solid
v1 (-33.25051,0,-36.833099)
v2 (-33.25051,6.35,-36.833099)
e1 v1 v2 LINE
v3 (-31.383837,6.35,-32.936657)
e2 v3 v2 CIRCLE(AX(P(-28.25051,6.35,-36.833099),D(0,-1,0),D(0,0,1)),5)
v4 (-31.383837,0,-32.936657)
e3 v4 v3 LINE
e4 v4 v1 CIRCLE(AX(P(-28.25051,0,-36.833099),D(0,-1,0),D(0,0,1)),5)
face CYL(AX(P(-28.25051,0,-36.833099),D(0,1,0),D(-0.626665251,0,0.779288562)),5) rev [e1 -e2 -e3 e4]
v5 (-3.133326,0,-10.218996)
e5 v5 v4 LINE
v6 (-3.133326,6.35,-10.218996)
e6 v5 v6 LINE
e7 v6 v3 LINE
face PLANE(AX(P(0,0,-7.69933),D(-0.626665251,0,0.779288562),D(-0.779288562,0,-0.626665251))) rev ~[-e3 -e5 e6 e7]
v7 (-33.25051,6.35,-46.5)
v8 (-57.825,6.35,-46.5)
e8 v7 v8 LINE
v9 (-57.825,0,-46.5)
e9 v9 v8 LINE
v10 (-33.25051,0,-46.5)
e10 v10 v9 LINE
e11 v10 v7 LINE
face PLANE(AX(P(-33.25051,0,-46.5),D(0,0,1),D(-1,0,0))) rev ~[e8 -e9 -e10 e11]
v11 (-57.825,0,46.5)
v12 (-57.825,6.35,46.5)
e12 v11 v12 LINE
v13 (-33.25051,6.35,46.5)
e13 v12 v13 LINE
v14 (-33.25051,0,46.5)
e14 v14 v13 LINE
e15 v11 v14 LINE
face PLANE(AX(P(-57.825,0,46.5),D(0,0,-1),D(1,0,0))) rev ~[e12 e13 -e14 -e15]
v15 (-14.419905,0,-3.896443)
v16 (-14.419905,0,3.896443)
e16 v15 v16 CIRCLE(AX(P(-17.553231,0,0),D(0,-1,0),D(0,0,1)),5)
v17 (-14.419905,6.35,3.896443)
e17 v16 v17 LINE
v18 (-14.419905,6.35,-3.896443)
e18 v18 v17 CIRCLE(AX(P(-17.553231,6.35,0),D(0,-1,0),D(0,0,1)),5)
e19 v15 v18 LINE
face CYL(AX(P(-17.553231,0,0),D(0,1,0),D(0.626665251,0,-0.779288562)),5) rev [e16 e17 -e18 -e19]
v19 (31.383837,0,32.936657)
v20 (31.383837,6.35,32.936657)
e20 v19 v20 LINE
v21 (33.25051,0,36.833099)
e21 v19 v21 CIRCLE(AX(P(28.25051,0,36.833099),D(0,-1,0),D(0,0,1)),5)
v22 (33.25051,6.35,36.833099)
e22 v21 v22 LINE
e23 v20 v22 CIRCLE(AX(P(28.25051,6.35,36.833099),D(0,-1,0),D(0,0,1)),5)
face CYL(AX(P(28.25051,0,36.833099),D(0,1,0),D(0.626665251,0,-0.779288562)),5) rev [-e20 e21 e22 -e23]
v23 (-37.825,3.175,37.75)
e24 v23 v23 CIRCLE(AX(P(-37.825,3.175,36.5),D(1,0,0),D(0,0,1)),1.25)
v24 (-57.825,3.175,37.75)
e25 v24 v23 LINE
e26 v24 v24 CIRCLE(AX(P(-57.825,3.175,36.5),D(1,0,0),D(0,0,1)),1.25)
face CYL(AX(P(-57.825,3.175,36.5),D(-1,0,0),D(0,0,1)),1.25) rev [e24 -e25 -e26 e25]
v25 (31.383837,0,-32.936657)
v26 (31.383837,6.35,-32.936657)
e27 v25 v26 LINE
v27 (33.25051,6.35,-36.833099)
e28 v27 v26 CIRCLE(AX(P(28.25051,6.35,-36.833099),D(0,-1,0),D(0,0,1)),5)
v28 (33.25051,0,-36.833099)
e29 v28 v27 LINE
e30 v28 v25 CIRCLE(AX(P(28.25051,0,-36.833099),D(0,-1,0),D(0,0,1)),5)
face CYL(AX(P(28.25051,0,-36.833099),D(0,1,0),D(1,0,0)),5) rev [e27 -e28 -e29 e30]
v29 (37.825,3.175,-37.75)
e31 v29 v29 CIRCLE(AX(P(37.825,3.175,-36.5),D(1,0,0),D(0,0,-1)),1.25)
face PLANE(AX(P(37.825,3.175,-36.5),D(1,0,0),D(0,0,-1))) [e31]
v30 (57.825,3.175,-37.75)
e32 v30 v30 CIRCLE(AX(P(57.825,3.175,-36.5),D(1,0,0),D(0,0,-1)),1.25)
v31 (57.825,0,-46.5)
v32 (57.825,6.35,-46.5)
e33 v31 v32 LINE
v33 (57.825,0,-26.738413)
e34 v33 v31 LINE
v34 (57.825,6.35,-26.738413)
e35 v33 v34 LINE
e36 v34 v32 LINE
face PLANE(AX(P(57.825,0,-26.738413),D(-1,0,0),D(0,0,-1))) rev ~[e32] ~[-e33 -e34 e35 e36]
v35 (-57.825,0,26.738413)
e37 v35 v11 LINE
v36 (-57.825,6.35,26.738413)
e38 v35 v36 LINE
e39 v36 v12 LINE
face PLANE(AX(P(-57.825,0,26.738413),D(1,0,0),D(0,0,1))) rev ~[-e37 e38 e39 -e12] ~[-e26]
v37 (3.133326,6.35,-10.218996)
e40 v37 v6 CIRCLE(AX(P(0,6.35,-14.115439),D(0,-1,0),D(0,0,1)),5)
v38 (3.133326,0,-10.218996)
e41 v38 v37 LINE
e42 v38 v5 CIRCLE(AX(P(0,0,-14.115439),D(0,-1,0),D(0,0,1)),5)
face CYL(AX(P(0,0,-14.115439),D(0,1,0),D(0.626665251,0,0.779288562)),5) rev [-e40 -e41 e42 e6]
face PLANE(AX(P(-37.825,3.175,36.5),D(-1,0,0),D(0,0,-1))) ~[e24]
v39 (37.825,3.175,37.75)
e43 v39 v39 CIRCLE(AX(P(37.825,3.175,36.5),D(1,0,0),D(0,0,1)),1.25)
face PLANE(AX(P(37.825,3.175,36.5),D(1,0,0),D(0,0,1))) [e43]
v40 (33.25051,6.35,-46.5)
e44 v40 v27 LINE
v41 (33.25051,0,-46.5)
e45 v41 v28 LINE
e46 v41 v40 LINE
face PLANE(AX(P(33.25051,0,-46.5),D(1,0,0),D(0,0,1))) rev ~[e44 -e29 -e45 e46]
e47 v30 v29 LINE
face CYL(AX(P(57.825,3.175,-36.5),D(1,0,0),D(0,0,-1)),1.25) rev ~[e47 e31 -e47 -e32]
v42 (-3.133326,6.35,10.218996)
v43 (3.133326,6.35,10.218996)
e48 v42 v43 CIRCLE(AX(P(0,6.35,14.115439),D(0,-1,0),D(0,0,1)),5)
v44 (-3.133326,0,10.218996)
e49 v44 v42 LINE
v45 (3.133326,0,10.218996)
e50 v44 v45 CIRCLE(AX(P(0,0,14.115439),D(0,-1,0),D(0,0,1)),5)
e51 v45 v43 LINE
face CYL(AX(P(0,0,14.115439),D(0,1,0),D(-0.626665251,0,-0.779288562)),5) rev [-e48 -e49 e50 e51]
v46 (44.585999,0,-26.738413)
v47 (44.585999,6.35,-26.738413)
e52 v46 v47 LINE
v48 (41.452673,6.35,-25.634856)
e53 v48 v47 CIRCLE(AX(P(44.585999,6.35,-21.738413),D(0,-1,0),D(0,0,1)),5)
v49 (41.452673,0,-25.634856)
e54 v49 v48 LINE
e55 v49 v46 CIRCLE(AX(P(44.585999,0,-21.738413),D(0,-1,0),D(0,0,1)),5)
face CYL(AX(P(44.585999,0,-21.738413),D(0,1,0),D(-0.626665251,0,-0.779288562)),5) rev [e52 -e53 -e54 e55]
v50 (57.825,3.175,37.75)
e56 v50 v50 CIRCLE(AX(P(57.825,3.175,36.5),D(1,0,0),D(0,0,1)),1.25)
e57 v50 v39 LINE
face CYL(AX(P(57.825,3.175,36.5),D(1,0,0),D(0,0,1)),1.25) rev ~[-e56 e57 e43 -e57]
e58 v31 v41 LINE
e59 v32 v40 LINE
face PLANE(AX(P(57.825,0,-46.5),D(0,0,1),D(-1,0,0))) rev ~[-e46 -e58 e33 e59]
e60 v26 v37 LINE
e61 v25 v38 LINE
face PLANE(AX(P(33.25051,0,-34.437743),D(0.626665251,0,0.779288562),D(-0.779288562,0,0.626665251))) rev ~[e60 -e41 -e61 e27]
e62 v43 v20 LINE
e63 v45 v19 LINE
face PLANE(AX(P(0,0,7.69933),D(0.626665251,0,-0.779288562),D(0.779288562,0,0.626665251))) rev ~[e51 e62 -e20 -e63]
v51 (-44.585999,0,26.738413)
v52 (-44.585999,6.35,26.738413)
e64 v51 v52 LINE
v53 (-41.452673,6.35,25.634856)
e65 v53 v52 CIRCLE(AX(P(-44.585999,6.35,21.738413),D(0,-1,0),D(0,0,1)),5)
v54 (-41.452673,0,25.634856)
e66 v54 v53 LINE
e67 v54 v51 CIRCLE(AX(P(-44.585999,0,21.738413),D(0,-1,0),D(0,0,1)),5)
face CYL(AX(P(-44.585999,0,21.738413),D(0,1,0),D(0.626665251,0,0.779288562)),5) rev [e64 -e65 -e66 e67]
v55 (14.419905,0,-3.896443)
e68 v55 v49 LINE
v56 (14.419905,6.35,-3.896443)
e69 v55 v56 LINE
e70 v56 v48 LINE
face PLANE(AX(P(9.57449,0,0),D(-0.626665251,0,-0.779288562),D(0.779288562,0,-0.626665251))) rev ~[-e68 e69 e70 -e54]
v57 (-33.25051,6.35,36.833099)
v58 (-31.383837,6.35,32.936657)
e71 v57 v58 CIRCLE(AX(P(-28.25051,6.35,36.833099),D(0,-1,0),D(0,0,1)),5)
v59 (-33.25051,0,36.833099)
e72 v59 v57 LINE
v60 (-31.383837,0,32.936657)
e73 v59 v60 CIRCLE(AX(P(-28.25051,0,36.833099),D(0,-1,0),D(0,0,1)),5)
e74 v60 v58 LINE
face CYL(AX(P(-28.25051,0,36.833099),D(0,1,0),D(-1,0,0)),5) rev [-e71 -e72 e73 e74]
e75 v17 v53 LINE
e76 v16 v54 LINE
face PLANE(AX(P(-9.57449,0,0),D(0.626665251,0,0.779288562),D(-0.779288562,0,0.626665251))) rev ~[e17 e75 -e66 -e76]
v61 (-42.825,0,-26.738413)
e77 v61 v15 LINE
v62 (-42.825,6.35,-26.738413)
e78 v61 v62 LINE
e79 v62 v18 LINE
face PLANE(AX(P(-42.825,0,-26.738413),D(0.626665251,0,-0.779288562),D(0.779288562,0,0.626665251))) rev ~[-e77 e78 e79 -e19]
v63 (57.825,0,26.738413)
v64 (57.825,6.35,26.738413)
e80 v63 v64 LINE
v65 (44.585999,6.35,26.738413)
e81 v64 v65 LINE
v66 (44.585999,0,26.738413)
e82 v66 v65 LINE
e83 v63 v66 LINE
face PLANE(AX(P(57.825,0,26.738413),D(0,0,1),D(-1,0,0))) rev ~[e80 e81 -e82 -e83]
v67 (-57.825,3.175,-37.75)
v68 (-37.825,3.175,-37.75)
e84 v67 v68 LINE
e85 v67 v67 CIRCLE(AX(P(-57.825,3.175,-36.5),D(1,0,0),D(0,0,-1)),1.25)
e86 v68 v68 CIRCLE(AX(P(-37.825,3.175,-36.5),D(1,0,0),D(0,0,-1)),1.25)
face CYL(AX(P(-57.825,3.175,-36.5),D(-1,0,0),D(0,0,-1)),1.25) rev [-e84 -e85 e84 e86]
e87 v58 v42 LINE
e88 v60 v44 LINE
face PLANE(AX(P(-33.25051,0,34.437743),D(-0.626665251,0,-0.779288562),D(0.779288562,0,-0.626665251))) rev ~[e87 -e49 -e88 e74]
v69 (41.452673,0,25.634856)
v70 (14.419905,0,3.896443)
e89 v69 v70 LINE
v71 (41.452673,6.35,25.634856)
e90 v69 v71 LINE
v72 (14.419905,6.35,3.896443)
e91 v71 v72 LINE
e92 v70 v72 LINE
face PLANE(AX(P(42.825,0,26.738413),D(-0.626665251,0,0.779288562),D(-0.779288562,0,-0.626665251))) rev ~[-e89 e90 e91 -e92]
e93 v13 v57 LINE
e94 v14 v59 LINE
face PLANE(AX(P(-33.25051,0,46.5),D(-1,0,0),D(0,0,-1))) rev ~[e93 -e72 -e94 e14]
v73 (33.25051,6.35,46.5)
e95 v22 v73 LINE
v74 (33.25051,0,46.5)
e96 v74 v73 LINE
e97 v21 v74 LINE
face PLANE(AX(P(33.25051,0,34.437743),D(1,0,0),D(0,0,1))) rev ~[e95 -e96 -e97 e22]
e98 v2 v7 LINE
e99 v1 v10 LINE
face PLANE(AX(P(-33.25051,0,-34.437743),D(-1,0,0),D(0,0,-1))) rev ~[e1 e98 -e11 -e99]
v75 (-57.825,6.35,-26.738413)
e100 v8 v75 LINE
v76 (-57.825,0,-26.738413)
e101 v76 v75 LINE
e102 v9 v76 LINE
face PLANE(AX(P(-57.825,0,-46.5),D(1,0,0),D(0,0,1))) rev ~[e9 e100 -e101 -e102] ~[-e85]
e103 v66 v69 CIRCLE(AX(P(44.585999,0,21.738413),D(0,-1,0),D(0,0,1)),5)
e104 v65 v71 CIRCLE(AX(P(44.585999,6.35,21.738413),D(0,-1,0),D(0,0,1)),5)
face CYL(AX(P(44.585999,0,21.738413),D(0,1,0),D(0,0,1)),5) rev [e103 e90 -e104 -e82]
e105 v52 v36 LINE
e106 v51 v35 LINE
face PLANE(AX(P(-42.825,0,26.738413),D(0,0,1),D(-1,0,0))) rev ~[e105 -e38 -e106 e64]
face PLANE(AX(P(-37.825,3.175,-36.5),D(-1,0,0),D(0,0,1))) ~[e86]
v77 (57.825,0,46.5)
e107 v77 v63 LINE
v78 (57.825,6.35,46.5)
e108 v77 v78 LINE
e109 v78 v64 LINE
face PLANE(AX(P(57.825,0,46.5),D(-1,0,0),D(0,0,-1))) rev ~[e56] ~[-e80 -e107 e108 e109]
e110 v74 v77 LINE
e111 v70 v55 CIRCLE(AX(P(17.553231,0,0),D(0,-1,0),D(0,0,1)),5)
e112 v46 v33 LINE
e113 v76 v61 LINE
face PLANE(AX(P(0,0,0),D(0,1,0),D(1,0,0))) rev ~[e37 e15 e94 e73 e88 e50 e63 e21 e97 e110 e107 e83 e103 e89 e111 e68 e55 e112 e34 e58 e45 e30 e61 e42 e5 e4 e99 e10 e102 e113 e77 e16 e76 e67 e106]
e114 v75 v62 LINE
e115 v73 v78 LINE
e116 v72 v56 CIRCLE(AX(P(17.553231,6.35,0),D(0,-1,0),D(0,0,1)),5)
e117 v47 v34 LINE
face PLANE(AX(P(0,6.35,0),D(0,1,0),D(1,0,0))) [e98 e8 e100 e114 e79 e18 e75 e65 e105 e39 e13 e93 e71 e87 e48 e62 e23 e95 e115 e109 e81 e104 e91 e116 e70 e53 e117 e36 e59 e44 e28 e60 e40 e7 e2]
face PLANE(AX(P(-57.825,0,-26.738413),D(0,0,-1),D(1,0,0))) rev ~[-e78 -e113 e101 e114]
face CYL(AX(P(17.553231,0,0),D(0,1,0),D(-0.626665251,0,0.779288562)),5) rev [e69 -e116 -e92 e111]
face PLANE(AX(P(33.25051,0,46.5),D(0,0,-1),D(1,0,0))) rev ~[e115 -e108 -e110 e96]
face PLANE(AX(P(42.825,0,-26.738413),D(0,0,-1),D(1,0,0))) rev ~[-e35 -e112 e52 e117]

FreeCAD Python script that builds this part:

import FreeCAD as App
import Part
import Sketcher
from FreeCAD import Vector
Q = App.Units.Quantity


def edges_at(feature, points):
    """Names of the edges that pass closest to the given points."""
    edges = feature.Shape.Edges
    near = lambda p: min(range(len(edges)), key=lambda i: edges[i].distToShape(Part.Vertex(*p))[0])
    return sorted({f"Edge{near(p) + 1}" for p in points})


def add_polygon(sketch, points):
    """Adds a closed chain of lines whose ends are joined by coincident constraints."""
    first, n = sketch.GeometryCount, len(points)
    for a, b in zip(points, points[1:] + points[:1]):
        sketch.addGeometry(Part.LineSegment(App.Vector(*a, 0), App.Vector(*b, 0)), False)
    for i in range(n):
        sketch.addConstraint(Sketcher.Constraint("Coincident", first + i, 2, first + (i + 1) % n, 1))

doc = App.newDocument("Part")
body = doc.addObject("PartDesign::Body", "Body")

sketch1 = body.newObject("Sketcher::SketchObject", "Sketch")
sketch1.AttachmentSupport = (doc.getObject("XZ_Plane"), [""])
sketch1.MapMode = "FlatFace"
add_polygon(sketch1, [(-57.825, -26.738413), (-42.825, -26.738413), (-9.57449, 0), (-42.825, 26.738413), (-57.825, 26.738413), (-57.825, 46.5), (-33.25051, 46.5), (-33.25051, 34.437743), (0, 7.69933), (33.25051, 34.437743), (33.25051, 46.5), (57.825, 46.5), (57.825, 26.738413), (42.825, 26.738413), (9.57449, 0), (42.825, -26.738413), (57.825, -26.738413), (57.825, -46.5), (33.25051, -46.5), (33.25051, -34.437743), (0, -7.69933), (-33.25051, -34.437743), (-33.25051, -46.5), (-57.825, -46.5)])
sketch1.addConstraint([
    Sketcher.Constraint("Horizontal", 0),
    Sketcher.Constraint("Horizontal", 3),
    Sketcher.Constraint("Vertical", 4),
    Sketcher.Constraint("Horizontal", 5),
    Sketcher.Constraint("Vertical", 6),
    Sketcher.Constraint("Vertical", 9),
    Sketcher.Constraint("Horizontal", 10),
    Sketcher.Constraint("Vertical", 11),
    Sketcher.Constraint("Horizontal", 12),
    Sketcher.Constraint("Horizontal", 15),
    Sketcher.Constraint("Vertical", 16),
    Sketcher.Constraint("Horizontal", 17),
    Sketcher.Constraint("Vertical", 18),
    Sketcher.Constraint("Vertical", 21),
    Sketcher.Constraint("Horizontal", 22),
    Sketcher.Constraint("Vertical", 23),
    Sketcher.Constraint("Symmetric", 0, 2, 12, 2, -1, 1),
    Sketcher.Constraint("Symmetric", 1, 2, 13, 2, -1, 1),
    Sketcher.Constraint("Symmetric", 2, 2, 14, 2, -1, 1),
    Sketcher.Constraint("Symmetric", 4, 2, 16, 2, -1, 1),
    Sketcher.Constraint("Symmetric", 6, 2, 18, 2, -1, 1),
    Sketcher.Constraint("Symmetric", 7, 2, 19, 2, -1, 1),
    Sketcher.Constraint("Symmetric", 8, 2, 20, 2, -1, 1),
    Sketcher.Constraint("Symmetric", 10, 2, 22, 2, -1, 1),
    Sketcher.Constraint("Symmetric", 6, 2, 8, 2, -2),
    Sketcher.Constraint("Symmetric", 4, 2, 10, 2, -2),
    Sketcher.Constraint("Symmetric", 2, 2, 12, 2, -2),
    Sketcher.Constraint("PointOnObject", 1, 2, -1),
    Sketcher.Constraint("PointOnObject", 7, 2, -2),
    Sketcher.Constraint("Parallel", 2, 7),
    Sketcher.Constraint("Equal", 2, 7),
    Sketcher.Constraint("DistanceX", 0, 1, 0, 2, Q("15 mm")),
    Sketcher.Constraint("DistanceY", -1, 1, 4, 2, Q("46.5 mm")),
    Sketcher.Constraint("DistanceX", 0, 2, -1, 1, Q("42.825 mm")),
    Sketcher.Constraint("DistanceX", 5, 1, 5, 2, Q("24.57449 mm")),
    Sketcher.Constraint("DistanceY", 4, 1, 4, 2, Q("19.761587 mm")),
    Sketcher.Constraint("DistanceY", 6, 2, 6, 1, Q("12.062257 mm")),
])
pad1 = body.newObject("PartDesign::Pad", "Pad")
pad1.Profile = sketch1
pad1.Length = 6.35
pad1.Reversed = True
doc.recompute()

fillet = body.newObject("PartDesign::Fillet", "Fillet")
fillet.Base = (pad1, edges_at(pad1, [
    (-33.251, 3.175, -34.438),
    (0, 3.175, -7.699),
    (33.251, 3.175, -34.438),
    (42.825, 3.175, -26.738),
    (9.574, 3.175, 0),
    (42.825, 3.175, 26.738),
    (33.251, 3.175, 34.438),
    (0, 3.175, 7.699),
    (-33.251, 3.175, 34.438),
    (-42.825, 3.175, 26.738),
    (-9.574, 3.175, 0),
]))
fillet.Radius = 5

sketch2 = body.newObject("Sketcher::SketchObject", "Sketch001")
sketch2.AttachmentSupport = (doc.getObject("YZ_Plane"), [""])
sketch2.MapMode = "FlatFace"
sketch2.AttachmentOffset = App.Placement(Vector(0, 0, 57.825), App.Rotation())
sketch2.addGeometry([
    Part.Circle(Vector(3.175, -36.5, 0), Vector(0, 0, 1), 1.25),
    Part.Circle(Vector(3.175, 36.5, 0), Vector(0, 0, 1), 1.25),
], False)
sketch2.addConstraint([
    Sketcher.Constraint("Equal", 0, 1),
    Sketcher.Constraint("Symmetric", 0, 3, 1, 3, -1),
    Sketcher.Constraint("Diameter", 0, Q("2.5 mm")),
    Sketcher.Constraint("DistanceY", 0, 3, 1, 3, Q("73 mm")),
    Sketcher.Constraint("DistanceX", -1, 1, 0, 3, Q("3.175 mm")),
])
pocket1 = body.newObject("PartDesign::Pocket", "Pocket")
pocket1.Profile = sketch2
pocket1.Length = 20
doc.recompute()

mirrored = body.newObject("PartDesign::Mirrored", "Mirrored")
mirrored.Originals = [pocket1]
mirrored.MirrorPlane = (doc.getObject("YZ_Plane"), [""])
body.Tip = mirrored

doc.recompute()
